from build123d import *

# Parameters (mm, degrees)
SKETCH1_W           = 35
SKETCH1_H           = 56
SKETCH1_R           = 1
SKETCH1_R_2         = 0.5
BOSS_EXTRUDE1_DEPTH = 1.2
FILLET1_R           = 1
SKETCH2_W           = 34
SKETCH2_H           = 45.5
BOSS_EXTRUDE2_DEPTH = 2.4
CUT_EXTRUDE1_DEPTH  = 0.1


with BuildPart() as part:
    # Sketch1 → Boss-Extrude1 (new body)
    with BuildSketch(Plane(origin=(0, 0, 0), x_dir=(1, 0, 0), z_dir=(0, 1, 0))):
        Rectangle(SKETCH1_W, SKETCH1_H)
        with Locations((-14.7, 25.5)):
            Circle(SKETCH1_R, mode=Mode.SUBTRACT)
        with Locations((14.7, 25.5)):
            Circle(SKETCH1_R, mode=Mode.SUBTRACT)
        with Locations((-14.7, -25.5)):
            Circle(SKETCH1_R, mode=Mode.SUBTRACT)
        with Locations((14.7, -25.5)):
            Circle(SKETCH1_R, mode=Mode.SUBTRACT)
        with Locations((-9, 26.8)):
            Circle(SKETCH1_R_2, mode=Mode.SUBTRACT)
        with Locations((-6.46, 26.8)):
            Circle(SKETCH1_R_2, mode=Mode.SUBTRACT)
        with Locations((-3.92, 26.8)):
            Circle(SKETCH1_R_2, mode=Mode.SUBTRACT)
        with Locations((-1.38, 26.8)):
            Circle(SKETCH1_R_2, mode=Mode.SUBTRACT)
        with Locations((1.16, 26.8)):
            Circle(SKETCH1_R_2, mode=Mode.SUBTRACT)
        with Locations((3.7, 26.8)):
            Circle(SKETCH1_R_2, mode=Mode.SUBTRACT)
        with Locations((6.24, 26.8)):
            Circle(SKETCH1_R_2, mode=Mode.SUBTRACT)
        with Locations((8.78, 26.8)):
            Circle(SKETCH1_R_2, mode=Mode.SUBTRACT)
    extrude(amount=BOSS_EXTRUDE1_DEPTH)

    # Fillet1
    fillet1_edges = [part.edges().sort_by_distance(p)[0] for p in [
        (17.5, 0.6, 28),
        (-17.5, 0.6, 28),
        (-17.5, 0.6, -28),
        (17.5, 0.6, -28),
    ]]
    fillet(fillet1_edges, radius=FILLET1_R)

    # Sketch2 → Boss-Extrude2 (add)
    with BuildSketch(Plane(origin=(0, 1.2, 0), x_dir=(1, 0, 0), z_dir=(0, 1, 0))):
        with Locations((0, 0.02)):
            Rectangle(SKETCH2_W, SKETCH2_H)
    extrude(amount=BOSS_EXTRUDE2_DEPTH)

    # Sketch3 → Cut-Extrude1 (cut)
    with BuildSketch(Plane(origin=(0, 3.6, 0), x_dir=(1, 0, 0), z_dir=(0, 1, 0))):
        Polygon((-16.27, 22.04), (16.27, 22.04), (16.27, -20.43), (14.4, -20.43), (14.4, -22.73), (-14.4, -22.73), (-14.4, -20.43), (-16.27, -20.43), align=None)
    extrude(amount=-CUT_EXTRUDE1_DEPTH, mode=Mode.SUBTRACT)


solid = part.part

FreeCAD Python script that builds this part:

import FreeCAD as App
import Part
import Sketcher

V = App.Vector
Q = App.Units.Quantity


def edges_at(feature, points):
    """Names of the edges that pass closest to the given points."""
    edges = feature.Shape.Edges
    near = lambda p: min(range(len(edges)), key=lambda i: edges[i].distToShape(Part.Vertex(*p))[0])
    return sorted({f"Edge{near(p) + 1}" for p in points})

doc = App.newDocument("Part")
body = doc.addObject("PartDesign::Body", "Body")

sketch1 = body.newObject("Sketcher::SketchObject", "Sketch")
sketch1.AttachmentSupport = (doc.getObject("XZ_Plane"), [""])
sketch1.MapMode = "FlatFace"
sketch1.addGeometry([
    Part.LineSegment(V(-17.5, -28, 0), V(-17.5, 28, 0)),
    Part.LineSegment(V(-17.5, 28, 0), V(17.5, 28, 0)),
    Part.LineSegment(V(17.5, 28, 0), V(17.5, -28, 0)),
    Part.LineSegment(V(17.5, -28, 0), V(-17.5, -28, 0)),
    Part.Circle(V(-14.7, 25.5, 0), V(0, 0, 1), 1),
    Part.Circle(V(14.7, 25.5, 0), V(0, 0, 1), 1),
    Part.Circle(V(-14.7, -25.5, 0), V(0, 0, 1), 1),
    Part.Circle(V(-9, -26.8, 0), V(0, 0, 1), 0.5),
    Part.Circle(V(-6.5, -26.8, 0), V(0, 0, 1), 0.5),
    Part.Circle(V(-3.9, -26.8, 0), V(0, 0, 1), 0.5),
    Part.Circle(V(-1.4, -26.8, 0), V(0, 0, 1), 0.5),
    Part.Circle(V(1.2, -26.8, 0), V(0, 0, 1), 0.5),
    Part.Circle(V(3.7, -26.8, 0), V(0, 0, 1), 0.5),
    Part.Circle(V(6.2, -26.8, 0), V(0, 0, 1), 0.5),
    Part.Circle(V(8.8, -26.8, 0), V(0, 0, 1), 0.5),
    Part.Circle(V(14.7, -25.5, 0), V(0, 0, 1), 1),
], False)
sketch1.addConstraint([
    Sketcher.Constraint("Coincident", 0, 2, 1, 1),
    Sketcher.Constraint("Coincident", 1, 2, 2, 1),
    Sketcher.Constraint("Coincident", 2, 2, 3, 1),
    Sketcher.Constraint("Coincident", 3, 2, 0, 1),
    Sketcher.Constraint("Vertical", 0),
    Sketcher.Constraint("Horizontal", 1),
    Sketcher.Constraint("Vertical", 2),
    Sketcher.Constraint("Horizontal", 3),
    Sketcher.Constraint("Equal", 4, 5),
    Sketcher.Constraint("Equal", 5, 6),
    Sketcher.Constraint("Equal", 7, 8),
    Sketcher.Constraint("Equal", 8, 9),
    Sketcher.Constraint("Equal", 9, 10),
    Sketcher.Constraint("Equal", 10, 11),
    Sketcher.Constraint("Equal", 11, 12),
    Sketcher.Constraint("Equal", 12, 13),
    Sketcher.Constraint("Equal", 13, 14),
    Sketcher.Constraint("Equal", 6, 15),
    Sketcher.Constraint("Symmetric", 5, 3, 6, 3, -1, 1),
    Sketcher.Constraint("Symmetric", 4, 3, 15, 3, -1, 1),
    Sketcher.Constraint("Symmetric", 0, 2, 2, 2, -1, 1),
    Sketcher.Constraint("Symmetric", 4, 3, 5, 3, -2),
    Sketcher.Constraint("Horizontal", 7, 3, 8, 3),
    Sketcher.Constraint("Horizontal", 8, 3, 9, 3),
    Sketcher.Constraint("Horizontal", 9, 3, 10, 3),
    Sketcher.Constraint("Horizontal", 10, 3, 11, 3),
    Sketcher.Constraint("Horizontal", 11, 3, 12, 3),
    Sketcher.Constraint("Horizontal", 12, 3, 13, 3),
    Sketcher.Constraint("Horizontal", 13, 3, 14, 3),
    Sketcher.Constraint("Diameter", 4, Q("2 mm")),
    Sketcher.Constraint("Diameter", 7, Q("1 mm")),
    Sketcher.Constraint("DistanceX", 1, 1, 1, 2, Q("35 mm")),
    Sketcher.Constraint("DistanceY", 0, 1, 0, 2, Q("56 mm")),
    Sketcher.Constraint("DistanceX", 7, 3, -1, 1, Q("9 mm")),
    Sketcher.Constraint("DistanceY", 6, 3, 4, 3, Q("51 mm")),
    Sketcher.Constraint("DistanceX", 12, 3, 15, 3, Q("11 mm")),
    Sketcher.Constraint("DistanceX", 4, 3, -1, 1, Q("14.7 mm")),
    Sketcher.Constraint("DistanceY", 7, 3, -1, 1, Q("26.8 mm")),
    Sketcher.Constraint("DistanceX", 8, 3, 13, 3, Q("12.7 mm")),
    Sketcher.Constraint("DistanceX", 9, 3, 14, 3, Q("12.7 mm")),
    Sketcher.Constraint("DistanceX", 8, 3, -1, 1, Q("6.46 mm")),
    Sketcher.Constraint("DistanceX", 9, 3, -1, 1, Q("3.92 mm")),
    Sketcher.Constraint("DistanceX", 10, 3, -1, 1, Q("1.38 mm")),
    Sketcher.Constraint("DistanceX", -1, 1, 11, 3, Q("1.16 mm")),
])
pad1 = body.newObject("PartDesign::Pad", "Pad")
pad1.Profile = sketch1
pad1.Length = 1.2
pad1.Reversed = True
doc.recompute()

fillet = body.newObject("PartDesign::Fillet", "Fillet")
fillet.Base = (pad1, edges_at(pad1, [
    (17.5, 0.6, 28),
    (-17.5, 0.6, 28),
    (-17.5, 0.6, -28),
    (17.5, 0.6, -28),
]))
fillet.Radius = 1

sketch2 = body.newObject("Sketcher::SketchObject", "Sketch001")
sketch2.AttachmentSupport = (doc.getObject("XZ_Plane"), [""])
sketch2.MapMode = "FlatFace"
sketch2.AttachmentOffset = App.Placement(V(0, 0, -1.2), App.Rotation())
sketch2.addGeometry([
    Part.LineSegment(V(-17, -23, 0), V(-17, 23, 0)),
    Part.LineSegment(V(-17, 23, 0), V(17, 23, 0)),
    Part.LineSegment(V(17, 23, 0), V(17, -23, 0)),
    Part.LineSegment(V(17, -23, 0), V(-17, -23, 0)),
], False)
sketch2.addConstraint([
    Sketcher.Constraint("Coincident", 0, 2, 1, 1),
    Sketcher.Constraint("Coincident", 1, 2, 2, 1),
    Sketcher.Constraint("Coincident", 2, 2, 3, 1),
    Sketcher.Constraint("Coincident", 3, 2, 0, 1),
    Sketcher.Constraint("Vertical", 0),
    Sketcher.Constraint("Horizontal", 1),
    Sketcher.Constraint("Vertical", 2),
    Sketcher.Constraint("Horizontal", 3),
    Sketcher.Constraint("DistanceX", 1, 1, 1, 2, Q("34 mm")),
    Sketcher.Constraint("DistanceY", 0, 1, 0, 2, Q("45.5 mm")),
    Sketcher.Constraint("DistanceX", 0, 2, -1, 1, Q("17 mm")),
    Sketcher.Constraint("DistanceY", -1, 1, 0, 2, Q("22.73 mm")),
])
pad2 = body.newObject("PartDesign::Pad", "Pad001")
pad2.Profile = sketch2
pad2.Length = 2.4
pad2.Reversed = True

sketch3 = body.newObject("Sketcher::SketchObject", "Sketch002")
sketch3.AttachmentSupport = (doc.getObject("XZ_Plane"), [""])
sketch3.MapMode = "FlatFace"
sketch3.AttachmentOffset = App.Placement(V(0, 0, -3.6), App.Rotation())
sketch3.addGeometry([
    Part.LineSegment(V(16.3, -22, 0), V(-16.3, -22, 0)),
    Part.LineSegment(V(-16.3, -22, 0), V(-16.3, 20.4, 0)),
    Part.LineSegment(V(-16.3, 20.4, 0), V(-14.4, 20.4, 0)),
    Part.LineSegment(V(-14.4, 20.4, 0), V(-14.4, 22.7, 0)),
    Part.LineSegment(V(-14.4, 22.7, 0), V(14.4, 22.7, 0)),
    Part.LineSegment(V(14.4, 22.7, 0), V(14.4, 20.4, 0)),
    Part.LineSegment(V(14.4, 20.4, 0), V(16.3, 20.4, 0)),
    Part.LineSegment(V(16.3, 20.4, 0), V(16.3, -22, 0)),
], False)
sketch3.addConstraint([
    Sketcher.Constraint("Coincident", 0, 2, 1, 1),
    Sketcher.Constraint("Coincident", 1, 2, 2, 1),
    Sketcher.Constraint("Coincident", 2, 2, 3, 1),
    Sketcher.Constraint("Coincident", 3, 2, 4, 1),
    Sketcher.Constraint("Coincident", 4, 2, 5, 1),
    Sketcher.Constraint("Coincident", 5, 2, 6, 1),
    Sketcher.Constraint("Coincident", 6, 2, 7, 1),
    Sketcher.Constraint("Coincident", 7, 2, 0, 1),
    Sketcher.Constraint("Horizontal", 0),
    Sketcher.Constraint("Vertical", 1),
    Sketcher.Constraint("Horizontal", 2),
    Sketcher.Constraint("Vertical", 3),
    Sketcher.Constraint("Horizontal", 4),
    Sketcher.Constraint("Vertical", 5),
    Sketcher.Constraint("Horizontal", 6),
    Sketcher.Constraint("Vertical", 7),
    Sketcher.Constraint("Symmetric", 2, 2, 5, 2, -2),
    Sketcher.Constraint("Equal", 2, 6),
    Sketcher.Constraint("DistanceX", 4, 1, 4, 2, Q("28.8 mm")),
    Sketcher.Constraint("DistanceY", 3, 1, 3, 2, Q("2.3 mm")),
    Sketcher.Constraint("DistanceX", 0, 2, 0, 1, Q("32.54 mm")),
    Sketcher.Constraint("DistanceY", 1, 1, 1, 2, Q("42.47 mm")),
    Sketcher.Constraint("DistanceY", 0, 2, -1, 1, Q("22.04 mm")),
])
pocket1 = body.newObject("PartDesign::Pocket", "Pocket")
pocket1.Profile = sketch3
pocket1.Length = 0.1
pocket1.Reversed = True

doc.recompute()
